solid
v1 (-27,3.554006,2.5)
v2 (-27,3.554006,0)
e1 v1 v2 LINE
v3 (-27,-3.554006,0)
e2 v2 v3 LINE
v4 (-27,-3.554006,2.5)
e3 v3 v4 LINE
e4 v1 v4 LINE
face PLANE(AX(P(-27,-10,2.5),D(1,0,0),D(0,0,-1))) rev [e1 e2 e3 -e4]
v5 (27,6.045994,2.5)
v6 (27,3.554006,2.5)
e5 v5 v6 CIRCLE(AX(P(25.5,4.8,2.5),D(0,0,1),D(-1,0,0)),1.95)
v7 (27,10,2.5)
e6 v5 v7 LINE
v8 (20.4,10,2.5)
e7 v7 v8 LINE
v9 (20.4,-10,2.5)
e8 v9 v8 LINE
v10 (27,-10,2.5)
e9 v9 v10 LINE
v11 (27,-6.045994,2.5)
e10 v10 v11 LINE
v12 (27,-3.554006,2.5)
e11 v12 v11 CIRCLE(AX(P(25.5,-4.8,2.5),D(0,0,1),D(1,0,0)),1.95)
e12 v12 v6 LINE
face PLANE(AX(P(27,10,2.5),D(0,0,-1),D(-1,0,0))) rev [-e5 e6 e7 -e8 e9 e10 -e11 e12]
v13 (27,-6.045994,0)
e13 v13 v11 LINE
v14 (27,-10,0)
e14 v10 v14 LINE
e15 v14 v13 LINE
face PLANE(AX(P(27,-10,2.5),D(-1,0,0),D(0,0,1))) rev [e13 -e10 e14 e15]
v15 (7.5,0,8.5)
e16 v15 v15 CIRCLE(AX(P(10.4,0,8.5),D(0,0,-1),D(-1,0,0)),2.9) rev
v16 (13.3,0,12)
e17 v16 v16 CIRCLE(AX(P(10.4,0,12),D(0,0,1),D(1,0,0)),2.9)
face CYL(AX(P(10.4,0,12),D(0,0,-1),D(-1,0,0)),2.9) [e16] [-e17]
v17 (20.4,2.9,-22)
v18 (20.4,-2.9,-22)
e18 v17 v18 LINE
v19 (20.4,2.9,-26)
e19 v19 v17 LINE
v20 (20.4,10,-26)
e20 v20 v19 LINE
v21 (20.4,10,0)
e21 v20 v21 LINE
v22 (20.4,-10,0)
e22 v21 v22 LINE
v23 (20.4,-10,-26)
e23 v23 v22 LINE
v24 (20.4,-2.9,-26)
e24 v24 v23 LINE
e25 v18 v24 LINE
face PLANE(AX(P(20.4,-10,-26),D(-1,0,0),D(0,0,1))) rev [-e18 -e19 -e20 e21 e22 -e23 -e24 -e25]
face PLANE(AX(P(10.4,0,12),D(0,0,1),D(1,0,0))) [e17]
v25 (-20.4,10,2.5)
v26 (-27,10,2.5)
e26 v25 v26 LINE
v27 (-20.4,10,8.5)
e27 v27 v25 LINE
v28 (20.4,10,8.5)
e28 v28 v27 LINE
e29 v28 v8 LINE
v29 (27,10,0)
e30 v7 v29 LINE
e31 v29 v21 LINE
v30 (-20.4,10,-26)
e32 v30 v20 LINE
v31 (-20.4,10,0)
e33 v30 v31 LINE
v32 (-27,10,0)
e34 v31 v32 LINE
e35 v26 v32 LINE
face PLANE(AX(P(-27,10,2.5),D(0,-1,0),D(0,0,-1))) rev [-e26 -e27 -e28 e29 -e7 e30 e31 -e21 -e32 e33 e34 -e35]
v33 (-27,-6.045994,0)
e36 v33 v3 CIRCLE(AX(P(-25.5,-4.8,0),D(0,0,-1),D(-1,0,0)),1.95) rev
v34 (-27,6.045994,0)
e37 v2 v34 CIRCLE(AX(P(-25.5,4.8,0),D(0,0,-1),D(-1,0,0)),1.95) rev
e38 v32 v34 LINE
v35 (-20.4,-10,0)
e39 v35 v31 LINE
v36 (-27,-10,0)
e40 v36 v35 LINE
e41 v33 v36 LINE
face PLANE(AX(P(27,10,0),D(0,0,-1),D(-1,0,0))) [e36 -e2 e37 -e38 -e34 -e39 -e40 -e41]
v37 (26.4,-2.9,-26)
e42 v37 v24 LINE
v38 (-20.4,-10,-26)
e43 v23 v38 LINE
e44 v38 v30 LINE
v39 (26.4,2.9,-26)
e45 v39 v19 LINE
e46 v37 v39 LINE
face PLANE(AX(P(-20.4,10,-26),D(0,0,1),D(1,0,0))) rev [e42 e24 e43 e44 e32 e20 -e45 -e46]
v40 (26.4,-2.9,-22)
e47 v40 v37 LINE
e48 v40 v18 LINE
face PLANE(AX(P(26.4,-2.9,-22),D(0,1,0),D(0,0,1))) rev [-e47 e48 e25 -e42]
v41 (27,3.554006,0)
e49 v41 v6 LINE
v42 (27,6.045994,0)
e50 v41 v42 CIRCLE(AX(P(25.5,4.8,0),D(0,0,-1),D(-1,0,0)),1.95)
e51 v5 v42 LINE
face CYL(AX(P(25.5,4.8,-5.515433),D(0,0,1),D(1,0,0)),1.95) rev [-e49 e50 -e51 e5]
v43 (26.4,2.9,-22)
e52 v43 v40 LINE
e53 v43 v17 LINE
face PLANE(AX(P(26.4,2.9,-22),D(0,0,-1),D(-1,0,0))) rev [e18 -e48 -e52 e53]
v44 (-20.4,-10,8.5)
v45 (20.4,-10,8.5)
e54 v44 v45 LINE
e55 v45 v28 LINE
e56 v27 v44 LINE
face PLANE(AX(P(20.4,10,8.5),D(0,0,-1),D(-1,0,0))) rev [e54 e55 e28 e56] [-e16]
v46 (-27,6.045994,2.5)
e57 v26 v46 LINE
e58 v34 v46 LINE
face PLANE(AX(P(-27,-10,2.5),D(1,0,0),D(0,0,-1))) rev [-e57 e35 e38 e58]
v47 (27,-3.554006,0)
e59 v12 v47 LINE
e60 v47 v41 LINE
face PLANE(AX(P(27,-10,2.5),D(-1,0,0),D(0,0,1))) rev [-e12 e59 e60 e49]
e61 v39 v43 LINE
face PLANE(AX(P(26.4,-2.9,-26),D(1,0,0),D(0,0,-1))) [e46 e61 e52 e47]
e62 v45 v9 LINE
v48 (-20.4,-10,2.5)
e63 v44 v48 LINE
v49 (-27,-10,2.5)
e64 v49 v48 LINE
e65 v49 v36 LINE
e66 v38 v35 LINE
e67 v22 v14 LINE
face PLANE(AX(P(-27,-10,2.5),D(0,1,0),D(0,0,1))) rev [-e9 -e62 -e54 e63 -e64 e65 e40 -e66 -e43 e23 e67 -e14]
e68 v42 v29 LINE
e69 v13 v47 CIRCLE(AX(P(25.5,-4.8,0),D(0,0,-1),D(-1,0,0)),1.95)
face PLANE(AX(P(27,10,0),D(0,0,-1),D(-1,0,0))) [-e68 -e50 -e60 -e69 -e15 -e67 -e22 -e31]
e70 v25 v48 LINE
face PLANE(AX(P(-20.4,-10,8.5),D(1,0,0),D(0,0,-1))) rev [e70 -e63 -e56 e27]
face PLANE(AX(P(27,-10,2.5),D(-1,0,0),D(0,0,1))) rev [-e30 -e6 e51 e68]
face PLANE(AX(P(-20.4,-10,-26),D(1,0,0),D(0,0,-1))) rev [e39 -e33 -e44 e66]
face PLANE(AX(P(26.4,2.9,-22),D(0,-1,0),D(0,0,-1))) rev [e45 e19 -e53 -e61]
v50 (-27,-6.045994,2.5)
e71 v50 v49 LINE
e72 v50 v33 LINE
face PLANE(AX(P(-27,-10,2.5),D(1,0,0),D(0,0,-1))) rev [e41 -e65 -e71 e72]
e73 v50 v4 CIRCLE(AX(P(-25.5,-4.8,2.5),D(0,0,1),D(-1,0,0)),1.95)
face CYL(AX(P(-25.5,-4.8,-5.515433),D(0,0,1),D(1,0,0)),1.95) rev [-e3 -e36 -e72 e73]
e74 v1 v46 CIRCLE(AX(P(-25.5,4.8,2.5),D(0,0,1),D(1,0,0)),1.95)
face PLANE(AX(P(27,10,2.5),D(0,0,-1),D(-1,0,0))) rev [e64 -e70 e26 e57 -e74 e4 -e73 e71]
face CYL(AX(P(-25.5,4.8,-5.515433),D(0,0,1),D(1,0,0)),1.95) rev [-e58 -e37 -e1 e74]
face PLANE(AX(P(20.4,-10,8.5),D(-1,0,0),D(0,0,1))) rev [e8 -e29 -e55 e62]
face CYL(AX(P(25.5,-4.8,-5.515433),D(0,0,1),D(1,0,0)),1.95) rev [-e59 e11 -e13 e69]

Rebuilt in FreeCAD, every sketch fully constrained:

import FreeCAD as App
import Part
import Sketcher

V = App.Vector
Q = App.Units.Quantity

doc = App.newDocument("Part")
body = doc.addObject("PartDesign::Body", "Body")

# Sketch on XY plane
sketch1 = body.newObject("Sketcher::SketchObject", "Sketch")
sketch1.AttachmentSupport = (doc.getObject("XY_Plane"), [""])
sketch1.MapMode = "FlatFace"
sketch1.addGeometry(Part.LineSegment(V(-27, 10, 0), V(-27, -10, 0)), False)
sketch1.addGeometry(Part.LineSegment(V(-27, -10, 0), V(27, -10, 0)), False)
sketch1.addGeometry(Part.LineSegment(V(27, -10, 0), V(27, 10, 0)), False)
sketch1.addGeometry(Part.LineSegment(V(27, 10, 0), V(-27, 10, 0)), False)
sketch1.addConstraint(Sketcher.Constraint("Coincident", 0, 2, 1, 1))
sketch1.addConstraint(Sketcher.Constraint("Coincident", 1, 2, 2, 1))
sketch1.addConstraint(Sketcher.Constraint("Coincident", 2, 2, 3, 1))
sketch1.addConstraint(Sketcher.Constraint("Coincident", 3, 2, 0, 1))
sketch1.addConstraint(Sketcher.Constraint("Vertical", 0))
sketch1.addConstraint(Sketcher.Constraint("Horizontal", 1))
sketch1.addConstraint(Sketcher.Constraint("Vertical", 2))
sketch1.addConstraint(Sketcher.Constraint("Horizontal", 3))
sketch1.addConstraint(Sketcher.Constraint("Symmetric", 0, 2, 2, 2, -1, 1))
sketch1.addConstraint(Sketcher.Constraint("DistanceX", 1, 1, 1, 2, Q("54 mm")))
sketch1.addConstraint(Sketcher.Constraint("DistanceY", 0, 2, 0, 1, Q("20 mm")))
pad1 = body.newObject("PartDesign::Pad", "Pad")
pad1.Profile = sketch1
pad1.Length = 2.5

# Sketch on XY plane
sketch2 = body.newObject("Sketcher::SketchObject", "Sketch001")
sketch2.AttachmentSupport = (doc.getObject("XY_Plane"), [""])
sketch2.MapMode = "FlatFace"
sketch2.AttachmentOffset = App.Placement(V(0, 0, 2.5), App.Rotation())
sketch2.addGeometry(Part.Circle(V(-25.5, 4.8, 0), V(0, 0, 1), 1.9), False)
sketch2.addGeometry(Part.Circle(V(-25.5, -4.8, 0), V(0, 0, 1), 1.9), False)
sketch2.addGeometry(Part.Circle(V(25.5, -4.8, 0), V(0, 0, 1), 1.9), False)
sketch2.addGeometry(Part.Circle(V(25.5, 4.8, 0), V(0, 0, 1), 1.9), False)
sketch2.addConstraint(Sketcher.Constraint("Equal", 0, 1))
sketch2.addConstraint(Sketcher.Constraint("Equal", 1, 2))
sketch2.addConstraint(Sketcher.Constraint("Equal", 2, 3))
sketch2.addConstraint(Sketcher.Constraint("Symmetric", 0, 3, 2, 3, -1, 1))
sketch2.addConstraint(Sketcher.Constraint("Symmetric", 1, 3, 3, 3, -1, 1))
sketch2.addConstraint(Sketcher.Constraint("Symmetric", 1, 3, 2, 3, -2))
sketch2.addConstraint(Sketcher.Constraint("Diameter", 0, Q("3.9 mm")))
sketch2.addConstraint(Sketcher.Constraint("DistanceX", 1, 3, 2, 3, Q("51 mm")))
sketch2.addConstraint(Sketcher.Constraint("DistanceY", -1, 1, 0, 3, Q("4.8 mm")))
pocket1 = body.newObject("PartDesign::Pocket", "Pocket")
pocket1.Profile = sketch2
pocket1.Length = 2.5

# Sketch on XY plane
sketch3 = body.newObject("Sketcher::SketchObject", "Sketch002")
sketch3.AttachmentSupport = (doc.getObject("XY_Plane"), [""])
sketch3.MapMode = "FlatFace"
sketch3.AttachmentOffset = App.Placement(V(0, 0, 2.5), App.Rotation())
sketch3.addGeometry(Part.LineSegment(V(-20, 10, 0), V(-20, -10, 0)), False)
sketch3.addGeometry(Part.LineSegment(V(-20, -10, 0), V(20, -10, 0)), False)
sketch3.addGeometry(Part.LineSegment(V(20, -10, 0), V(20, 10, 0)), False)
sketch3.addGeometry(Part.LineSegment(V(20, 10, 0), V(-20, 10, 0)), False)
sketch3.addConstraint(Sketcher.Constraint("Coincident", 0, 2, 1, 1))
sketch3.addConstraint(Sketcher.Constraint("Coincident", 1, 2, 2, 1))
sketch3.addConstraint(Sketcher.Constraint("Coincident", 2, 2, 3, 1))
sketch3.addConstraint(Sketcher.Constraint("Coincident", 3, 2, 0, 1))
sketch3.addConstraint(Sketcher.Constraint("Vertical", 0))
sketch3.addConstraint(Sketcher.Constraint("Horizontal", 1))
sketch3.addConstraint(Sketcher.Constraint("Vertical", 2))
sketch3.addConstraint(Sketcher.Constraint("Horizontal", 3))
sketch3.addConstraint(Sketcher.Constraint("Symmetric", 0, 2, 2, 2, -1, 1))
sketch3.addConstraint(Sketcher.Constraint("DistanceY", 0, 2, 0, 1, Q("20 mm")))
sketch3.addConstraint(Sketcher.Constraint("DistanceX", 1, 1, 1, 2, Q("40.8 mm")))
pad2 = body.newObject("PartDesign::Pad", "Pad001")
pad2.Profile = sketch3
pad2.Length = 6

# Sketch on XY plane
sketch4 = body.newObject("Sketcher::SketchObject", "Sketch003")
sketch4.AttachmentSupport = (doc.getObject("XY_Plane"), [""])
sketch4.MapMode = "FlatFace"
sketch4.addGeometry(Part.LineSegment(V(20, 10, 0), V(20, -10, 0)), False)
sketch4.addGeometry(Part.LineSegment(V(20, -10, 0), V(-20, -10, 0)), False)
sketch4.addGeometry(Part.LineSegment(V(-20, -10, 0), V(-20, 10, 0)), False)
sketch4.addGeometry(Part.LineSegment(V(-20, 10, 0), V(20, 10, 0)), False)
sketch4.addConstraint(Sketcher.Constraint("Coincident", 0, 2, 1, 1))
sketch4.addConstraint(Sketcher.Constraint("Coincident", 1, 2, 2, 1))
sketch4.addConstraint(Sketcher.Constraint("Coincident", 2, 2, 3, 1))
sketch4.addConstraint(Sketcher.Constraint("Coincident", 3, 2, 0, 1))
sketch4.addConstraint(Sketcher.Constraint("Vertical", 0))
sketch4.addConstraint(Sketcher.Constraint("Horizontal", 1))
sketch4.addConstraint(Sketcher.Constraint("Vertical", 2))
sketch4.addConstraint(Sketcher.Constraint("Horizontal", 3))
sketch4.addConstraint(Sketcher.Constraint("Symmetric", 0, 2, 2, 2, -1, 1))
sketch4.addConstraint(Sketcher.Constraint("DistanceY", 0, 2, 0, 1, Q("20 mm")))
sketch4.addConstraint(Sketcher.Constraint("DistanceX", 1, 2, 1, 1, Q("40.8 mm")))
pad3 = body.newObject("PartDesign::Pad", "Pad002")
pad3.Profile = sketch4
pad3.Length = 26
pad3.Reversed = True

# Sketch on XY plane
sketch5 = body.newObject("Sketcher::SketchObject", "Sketch004")
sketch5.AttachmentSupport = (doc.getObject("XY_Plane"), [""])
sketch5.MapMode = "FlatFace"
sketch5.AttachmentOffset = App.Placement(V(0, 0, 8.5), App.Rotation())
sketch5.addGeometry(Part.Circle(V(10.4, 0, 0), V(0, 0, 1), 2.9), False)
sketch5.addConstraint(Sketcher.Constraint("PointOnObject", 0, 3, -1))
sketch5.addConstraint(Sketcher.Constraint("Diameter", 0, Q("5.8 mm")))
sketch5.addConstraint(Sketcher.Constraint("DistanceX", -1, 1, 0, 3, Q("10.4 mm")))
pad4 = body.newObject("PartDesign::Pad", "Pad003")
pad4.Profile = sketch5
pad4.Length = 3.5

# Sketch on YZ plane
sketch6 = body.newObject("Sketcher::SketchObject", "Sketch005")
sketch6.AttachmentSupport = (doc.getObject("YZ_Plane"), [""])
sketch6.MapMode = "FlatFace"
sketch6.AttachmentOffset = App.Placement(V(0, 0, 20.4), App.Rotation())
sketch6.addGeometry(Part.LineSegment(V(2.9, -22, 0), V(-2.9, -22, 0)), False)
sketch6.addGeometry(Part.LineSegment(V(-2.9, -22, 0), V(-2.9, -26, 0)), False)
sketch6.addGeometry(Part.LineSegment(V(-2.9, -26, 0), V(2.9, -26, 0)), False)
sketch6.addGeometry(Part.LineSegment(V(2.9, -26, 0), V(2.9, -22, 0)), False)
sketch6.addConstraint(Sketcher.Constraint("Coincident", 0, 2, 1, 1))
sketch6.addConstraint(Sketcher.Constraint("Coincident", 1, 2, 2, 1))
sketch6.addConstraint(Sketcher.Constraint("Coincident", 2, 2, 3, 1))
sketch6.addConstraint(Sketcher.Constraint("Coincident", 3, 2, 0, 1))
sketch6.addConstraint(Sketcher.Constraint("Horizontal", 0))
sketch6.addConstraint(Sketcher.Constraint("Vertical", 1))
sketch6.addConstraint(Sketcher.Constraint("Horizontal", 2))
sketch6.addConstraint(Sketcher.Constraint("Vertical", 3))
sketch6.addConstraint(Sketcher.Constraint("DistanceY", 1, 2, 1, 1, Q("4 mm")))
sketch6.addConstraint(Sketcher.Constraint("DistanceX", 0, 2, 0, 1, Q("5.8 mm")))
sketch6.addConstraint(Sketcher.Constraint("DistanceY", 0, 2, -1, 1, Q("22 mm")))
sketch6.addConstraint(Sketcher.Constraint("DistanceX", 0, 2, -1, 1, Q("2.9 mm")))
pad5 = body.newObject("PartDesign::Pad", "Pad004")
pad5.Profile = sketch6
pad5.Length = 6

doc.recompute()
